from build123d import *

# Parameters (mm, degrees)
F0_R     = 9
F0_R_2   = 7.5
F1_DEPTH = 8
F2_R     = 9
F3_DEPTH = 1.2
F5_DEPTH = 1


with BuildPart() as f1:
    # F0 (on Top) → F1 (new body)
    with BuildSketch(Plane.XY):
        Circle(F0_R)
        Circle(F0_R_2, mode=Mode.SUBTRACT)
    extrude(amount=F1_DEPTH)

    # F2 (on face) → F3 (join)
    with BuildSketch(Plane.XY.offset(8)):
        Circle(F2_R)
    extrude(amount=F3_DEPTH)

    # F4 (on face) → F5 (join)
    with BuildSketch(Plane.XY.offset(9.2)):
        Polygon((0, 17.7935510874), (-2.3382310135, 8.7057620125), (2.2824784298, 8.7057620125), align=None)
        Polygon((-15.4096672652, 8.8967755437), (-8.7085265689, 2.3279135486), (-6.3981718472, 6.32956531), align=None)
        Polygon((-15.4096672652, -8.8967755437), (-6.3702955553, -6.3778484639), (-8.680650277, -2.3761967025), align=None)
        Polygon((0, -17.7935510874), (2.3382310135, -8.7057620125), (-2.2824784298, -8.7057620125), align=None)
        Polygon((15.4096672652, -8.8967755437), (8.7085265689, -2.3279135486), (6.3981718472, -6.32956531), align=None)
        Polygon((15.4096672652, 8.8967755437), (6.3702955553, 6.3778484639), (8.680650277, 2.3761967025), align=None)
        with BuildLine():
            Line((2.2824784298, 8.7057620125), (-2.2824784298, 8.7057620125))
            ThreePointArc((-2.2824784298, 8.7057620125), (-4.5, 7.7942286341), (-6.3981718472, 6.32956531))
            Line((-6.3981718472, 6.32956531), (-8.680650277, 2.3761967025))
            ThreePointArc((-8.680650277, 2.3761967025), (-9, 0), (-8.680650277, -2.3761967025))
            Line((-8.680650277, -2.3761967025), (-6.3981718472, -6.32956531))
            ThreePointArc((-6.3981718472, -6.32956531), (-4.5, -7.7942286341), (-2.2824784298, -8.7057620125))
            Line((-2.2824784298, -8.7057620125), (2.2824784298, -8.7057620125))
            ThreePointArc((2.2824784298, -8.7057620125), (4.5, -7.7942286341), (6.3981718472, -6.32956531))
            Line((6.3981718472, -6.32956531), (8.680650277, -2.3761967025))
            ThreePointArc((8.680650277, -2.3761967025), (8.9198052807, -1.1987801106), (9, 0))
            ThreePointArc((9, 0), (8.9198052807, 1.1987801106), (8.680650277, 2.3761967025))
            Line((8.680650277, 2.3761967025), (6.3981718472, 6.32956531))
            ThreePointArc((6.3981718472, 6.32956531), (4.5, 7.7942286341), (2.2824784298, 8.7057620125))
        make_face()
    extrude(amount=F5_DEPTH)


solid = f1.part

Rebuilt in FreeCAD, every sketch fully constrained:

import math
import FreeCAD as App
import Part
import Sketcher
from FreeCAD import Vector
Q = App.Units.Quantity

doc = App.newDocument("Part")
body = doc.addObject("PartDesign::Body", "Body")

# Sketch on XY plane
sketch1 = body.newObject("Sketcher::SketchObject", "Sketch")
sketch1.AttachmentSupport = (doc.getObject("XY_Plane"), [""])
sketch1.MapMode = "FlatFace"
sketch1.addGeometry([
    Part.Circle(Vector(0, 0, 0), Vector(0, 0, 1), 9),
    Part.Circle(Vector(0, 0, 0), Vector(0, 0, 1), 8),
], False)
sketch1.addConstraint([
    Sketcher.Constraint("Coincident", 0, 3, -1, 1),
    Sketcher.Constraint("Coincident", 1, 3, -1, 1),
    Sketcher.Constraint("Diameter", 0, Q("18 mm")),
    Sketcher.Constraint("Diameter", 1, Q("15 mm")),
])
pad1 = body.newObject("PartDesign::Pad", "Pad")
pad1.Profile = sketch1
pad1.Length = 8

# Sketch on XY plane
sketch2 = body.newObject("Sketcher::SketchObject", "Sketch001")
sketch2.AttachmentSupport = (doc.getObject("XY_Plane"), [""])
sketch2.MapMode = "FlatFace"
sketch2.AttachmentOffset = App.Placement(Vector(0, 0, 8), App.Rotation())
sketch2.addGeometry(Part.Circle(Vector(0, 0, 0), Vector(0, 0, 1), 9), False)
sketch2.addConstraint([
    Sketcher.Constraint("Coincident", 0, 3, -1, 1),
    Sketcher.Constraint("Diameter", 0, Q("18 mm")),
])
pad2 = body.newObject("PartDesign::Pad", "Pad001")
pad2.Profile = sketch2
pad2.Length = 1.2

# Sketch on XY plane
sketch3 = body.newObject("Sketcher::SketchObject", "Sketch002")
sketch3.AttachmentSupport = (doc.getObject("XY_Plane"), [""])
sketch3.MapMode = "FlatFace"
sketch3.AttachmentOffset = App.Placement(Vector(0, 0, 9.2), App.Rotation())
sketch3.addGeometry([
    Part.LineSegment(Vector(0, 17.79, 0), Vector(-2.34, 8.71, 0)),  # 0
    Part.LineSegment(Vector(-2.34, 8.71, 0), Vector(-2.28, 8.71, 0)),  # 1
    Part.ArcOfCircle(Part.Circle(Vector(0, 0, 0), Vector(0, 0, 1), 9), math.radians(105), math.radians(135)),  # 2
    Part.LineSegment(Vector(-6.4, 6.33, 0), Vector(-15.41, 8.9, 0)),  # 3
    Part.LineSegment(Vector(-15.41, 8.9, 0), Vector(-8.71, 2.33, 0)),  # 4
    Part.LineSegment(Vector(-8.71, 2.33, 0), Vector(-8.68, 2.38, 0)),  # 5
    Part.ArcOfCircle(Part.Circle(Vector(0, 0, 0), Vector(0, 0, 1), 9), math.radians(165), math.radians(195)),  # 6
    Part.LineSegment(Vector(-8.68, -2.38, 0), Vector(-15.41, -8.9, 0)),  # 7
    Part.LineSegment(Vector(-15.41, -8.9, 0), Vector(-6.37, -6.38, 0)),  # 8
    Part.LineSegment(Vector(-6.37, -6.38, 0), Vector(-6.4, -6.33, 0)),  # 9
    Part.ArcOfCircle(Part.Circle(Vector(0, 0, 0), Vector(0, 0, 1), 9), math.radians(-135), math.radians(-105)),  # 10
    Part.LineSegment(Vector(-2.28, -8.71, 0), Vector(0, -17.79, 0)),  # 11
    Part.LineSegment(Vector(0, -17.79, 0), Vector(2.34, -8.71, 0)),  # 12
    Part.LineSegment(Vector(2.34, -8.71, 0), Vector(2.28, -8.71, 0)),  # 13
    Part.ArcOfCircle(Part.Circle(Vector(0, 0, 0), Vector(0, 0, 1), 9), math.radians(-75), math.radians(-45)),  # 14
    Part.LineSegment(Vector(6.4, -6.33, 0), Vector(15.41, -8.9, 0)),  # 15
    Part.LineSegment(Vector(15.41, -8.9, 0), Vector(8.71, -2.33, 0)),  # 16
    Part.LineSegment(Vector(8.71, -2.33, 0), Vector(8.68, -2.38, 0)),  # 17
    Part.ArcOfCircle(Part.Circle(Vector(0, 0, 0), Vector(0, 0, 1), 9), math.radians(-15.31), math.radians(0)),  # 18
    Part.ArcOfCircle(Part.Circle(Vector(0, 0, 0), Vector(0, 0, 1), 9), math.radians(0), math.radians(15.31)),  # 19
    Part.LineSegment(Vector(8.68, 2.38, 0), Vector(15.41, 8.9, 0)),  # 20
    Part.LineSegment(Vector(15.41, 8.9, 0), Vector(6.37, 6.38, 0)),  # 21
    Part.LineSegment(Vector(6.37, 6.38, 0), Vector(6.4, 6.33, 0)),  # 22
    Part.ArcOfCircle(Part.Circle(Vector(0, 0, 0), Vector(0, 0, 1), 9), math.radians(45), math.radians(75)),  # 23
    Part.LineSegment(Vector(2.28, 8.71, 0), Vector(0, 17.79, 0)),  # 24
], False)
sketch3.addConstraint([
    Sketcher.Constraint("Coincident", 0, 2, 1, 1),
    Sketcher.Constraint("Coincident", 1, 2, 2, 1),
    Sketcher.Constraint("Coincident", 2, 2, 3, 1),
    Sketcher.Constraint("Coincident", 3, 2, 4, 1),
    Sketcher.Constraint("Coincident", 4, 2, 5, 1),
    Sketcher.Constraint("Coincident", 5, 2, 6, 1),
    Sketcher.Constraint("Coincident", 6, 2, 7, 1),
    Sketcher.Constraint("Coincident", 7, 2, 8, 1),
    Sketcher.Constraint("Coincident", 8, 2, 9, 1),
    Sketcher.Constraint("Coincident", 9, 2, 10, 1),
    Sketcher.Constraint("Coincident", 10, 2, 11, 1),
    Sketcher.Constraint("Coincident", 11, 2, 12, 1),
    Sketcher.Constraint("Coincident", 12, 2, 13, 1),
    Sketcher.Constraint("Coincident", 13, 2, 14, 1),
    Sketcher.Constraint("Coincident", 14, 2, 15, 1),
    Sketcher.Constraint("Coincident", 15, 2, 16, 1),
    Sketcher.Constraint("Coincident", 16, 2, 17, 1),
    Sketcher.Constraint("Coincident", 17, 2, 18, 1),
    Sketcher.Constraint("Tangent", 18, 2, 19, 1),
    Sketcher.Constraint("Coincident", 19, 2, 20, 1),
    Sketcher.Constraint("Coincident", 20, 2, 21, 1),
    Sketcher.Constraint("Coincident", 21, 2, 22, 1),
    Sketcher.Constraint("Coincident", 22, 2, 23, 1),
    Sketcher.Constraint("Coincident", 23, 2, 24, 1),
    Sketcher.Constraint("Coincident", 24, 2, 0, 1),
    Sketcher.Constraint("Horizontal", 1),
    Sketcher.Constraint("Horizontal", 13),
    Sketcher.Constraint("Coincident", 2, 3, -1, 1),
    Sketcher.Constraint("Coincident", 6, 3, -1, 1),
    Sketcher.Constraint("Coincident", 10, 3, -1, 1),
    Sketcher.Constraint("Coincident", 14, 3, -1, 1),
    Sketcher.Constraint("Coincident", 18, 3, -1, 1),
    Sketcher.Constraint("Coincident", 23, 3, -1, 1),
    Sketcher.Constraint("Equal", 2, 6),
    Sketcher.Constraint("Equal", 6, 10),
    Sketcher.Constraint("Equal", 10, 14),
    Sketcher.Constraint("Equal", 14, 18),
    Sketcher.Constraint("Equal", 18, 19),
    Sketcher.Constraint("Equal", 19, 23),
    Sketcher.Constraint("Symmetric", 0, 2, 12, 2, -1, 1),
    Sketcher.Constraint("Symmetric", 3, 2, 15, 2, -1, 1),
    Sketcher.Constraint("Symmetric", 4, 2, 16, 2, -1, 1),
    Sketcher.Constraint("Symmetric", 7, 2, 20, 2, -1, 1),
    Sketcher.Constraint("Symmetric", 8, 2, 21, 2, -1, 1),
    Sketcher.Constraint("Symmetric", 11, 2, 24, 2, -1, 1),
    Sketcher.Constraint("Symmetric", 7, 2, 15, 2, -2),
    Sketcher.Constraint("PointOnObject", 11, 2, -2),
    Sketcher.Constraint("PointOnObject", 18, 2, -1),
    Sketcher.Constraint("Parallel", 3, 15),
    Sketcher.Constraint("Parallel", 5, 17),
    Sketcher.Constraint("Parallel", 7, 20),
    Sketcher.Constraint("Parallel", 9, 22),
    Sketcher.Constraint("Parallel", 11, 24),
    Sketcher.Constraint("Horizontal", 10, 2, 12, 2),
    Sketcher.Constraint("Horizontal", 9, 2, 14, 2),
    Sketcher.Constraint("Horizontal", 6, 2, 17, 2),
    Sketcher.Constraint("Equal", 0, 4),
    Sketcher.Constraint("Equal", 3, 7),
    Sketcher.Constraint("Equal", 4, 8),
    Sketcher.Constraint("Equal", 5, 9),
    Sketcher.Constraint("Equal", 7, 11),
    Sketcher.Constraint("Radius", 2, Q("9 mm")),
    Sketcher.Constraint("Angle", 5, Q("59.999999 deg")),
    Sketcher.Constraint("Distance", 3, Q("9.370038 mm")),
    Sketcher.Constraint("DistanceX", 1, 1, 1, 2, Q("0.055753 mm")),
    Sketcher.Constraint("DistanceX", 0, 2, -1, 1, Q("2.338231 mm")),
    Sketcher.Constraint("DistanceX", 2, 2, -1, 1, Q("6.398172 mm")),
    Sketcher.Constraint("DistanceX", 5, 2, -1, 1, Q("8.68065 mm")),
])
pad3 = body.newObject("PartDesign::Pad", "Pad002")
pad3.Profile = sketch3
pad3.Length = 1

doc.recompute()
